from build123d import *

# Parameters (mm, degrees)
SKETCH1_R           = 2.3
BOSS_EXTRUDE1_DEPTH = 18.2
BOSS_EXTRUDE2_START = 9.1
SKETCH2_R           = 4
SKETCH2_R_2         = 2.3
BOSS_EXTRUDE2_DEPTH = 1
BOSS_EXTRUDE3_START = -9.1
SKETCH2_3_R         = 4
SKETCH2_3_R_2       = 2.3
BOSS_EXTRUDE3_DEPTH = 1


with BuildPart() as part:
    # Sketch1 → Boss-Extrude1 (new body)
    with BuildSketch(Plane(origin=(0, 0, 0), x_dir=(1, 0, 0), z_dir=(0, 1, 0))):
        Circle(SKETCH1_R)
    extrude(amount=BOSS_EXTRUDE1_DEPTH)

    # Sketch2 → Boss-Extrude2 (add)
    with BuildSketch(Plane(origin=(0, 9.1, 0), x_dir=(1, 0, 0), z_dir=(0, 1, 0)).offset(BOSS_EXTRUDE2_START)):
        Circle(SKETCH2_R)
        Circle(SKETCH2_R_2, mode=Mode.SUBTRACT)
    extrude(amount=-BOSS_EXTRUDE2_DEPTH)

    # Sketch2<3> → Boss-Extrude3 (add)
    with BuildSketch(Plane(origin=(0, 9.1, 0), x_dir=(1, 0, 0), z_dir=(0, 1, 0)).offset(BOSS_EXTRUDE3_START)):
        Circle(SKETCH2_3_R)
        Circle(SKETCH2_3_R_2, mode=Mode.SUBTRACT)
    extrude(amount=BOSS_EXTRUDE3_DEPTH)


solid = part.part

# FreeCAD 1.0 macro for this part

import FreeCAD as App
import Part
import Sketcher
from FreeCAD import Vector
Q = App.Units.Quantity

doc = App.newDocument("Part")
params = doc.addObject("Spreadsheet::Sheet", "Params")
for row, (alias, value) in enumerate([
    ("sketch1_diameter", "4.6 mm"),
    ("pad1_length", "18.2 mm"),
    ("sketch2_diameter", "8 mm"),
    ("sketch2_diameter2", "4.6 mm"),
    ("pad2_length", "1 mm"),
    ("sketch3_diameter", "8 mm"),
    ("sketch3_diameter2", "4.6 mm"),
    ("pad3_length", "1 mm"),
], start=1):
    params.set(f"A{row}", alias)
    params.set(f"B{row}", "=" + value)
    params.setAlias(f"B{row}", alias)

body = doc.addObject("PartDesign::Body", "Body")

sketch1 = body.newObject("Sketcher::SketchObject", "Sketch")
sketch1.AttachmentSupport = (doc.getObject("XZ_Plane"), [""])
sketch1.MapMode = "FlatFace"
sketch1.addGeometry(Part.Circle(Vector(0, 0, 0), Vector(0, 0, 1), 2.3), False)
sketch1.addConstraint([
    Sketcher.Constraint("Coincident", 0, 3, -1, 1),
    Sketcher.Constraint("Diameter", 0, Q("4.6 mm")),
])
sketch1.setExpression("Constraints[1]", "Params.sketch1_diameter")
pad1 = body.newObject("PartDesign::Pad", "Pad")
pad1.Profile = sketch1
pad1.setExpression("Length", "Params.pad1_length")
pad1.Reversed = True

sketch2 = body.newObject("Sketcher::SketchObject", "Sketch001")
sketch2.AttachmentSupport = (doc.getObject("XZ_Plane"), [""])
sketch2.MapMode = "FlatFace"
sketch2.AttachmentOffset = App.Placement(Vector(0, 0, -18.2), App.Rotation())
sketch2.addGeometry([
    Part.Circle(Vector(0, 0, 0), Vector(0, 0, 1), 4),
    Part.Circle(Vector(0, 0, 0), Vector(0, 0, 1), 2.3),
], False)
sketch2.addConstraint([
    Sketcher.Constraint("Coincident", 0, 3, -1, 1),
    Sketcher.Constraint("Coincident", 1, 3, -1, 1),
    Sketcher.Constraint("Diameter", 0, Q("8 mm")),
    Sketcher.Constraint("Diameter", 1, Q("4.6 mm")),
])
sketch2.setExpression("Constraints[2]", "Params.sketch2_diameter")
sketch2.setExpression("Constraints[3]", "Params.sketch2_diameter2")
pad2 = body.newObject("PartDesign::Pad", "Pad001")
pad2.Profile = sketch2
pad2.setExpression("Length", "Params.pad2_length")

sketch3 = body.newObject("Sketcher::SketchObject", "Sketch002")
sketch3.AttachmentSupport = (doc.getObject("XZ_Plane"), [""])
sketch3.MapMode = "FlatFace"
sketch3.addGeometry([
    Part.Circle(Vector(0, 0, 0), Vector(0, 0, 1), 4),
    Part.Circle(Vector(0, 0, 0), Vector(0, 0, 1), 2.3),
], False)
sketch3.addConstraint([
    Sketcher.Constraint("Coincident", 0, 3, -1, 1),
    Sketcher.Constraint("Coincident", 1, 3, -1, 1),
    Sketcher.Constraint("Diameter", 0, Q("8 mm")),
    Sketcher.Constraint("Diameter", 1, Q("4.6 mm")),
])
sketch3.setExpression("Constraints[2]", "Params.sketch3_diameter")
sketch3.setExpression("Constraints[3]", "Params.sketch3_diameter2")
pad3 = body.newObject("PartDesign::Pad", "Pad002")
pad3.Profile = sketch3
pad3.setExpression("Length", "Params.pad3_length")
pad3.Reversed = True

doc.recompute()
